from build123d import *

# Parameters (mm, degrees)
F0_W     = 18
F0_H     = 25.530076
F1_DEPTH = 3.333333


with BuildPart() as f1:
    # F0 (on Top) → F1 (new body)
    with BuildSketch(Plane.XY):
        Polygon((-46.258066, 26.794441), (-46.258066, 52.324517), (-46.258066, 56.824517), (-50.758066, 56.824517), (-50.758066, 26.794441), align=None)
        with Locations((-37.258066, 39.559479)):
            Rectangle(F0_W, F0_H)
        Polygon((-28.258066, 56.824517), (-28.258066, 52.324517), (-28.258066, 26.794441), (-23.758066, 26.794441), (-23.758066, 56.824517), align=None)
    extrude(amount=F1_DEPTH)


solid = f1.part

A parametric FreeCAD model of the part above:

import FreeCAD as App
import Part
import Sketcher

doc = App.newDocument("Part")
body = doc.addObject("PartDesign::Body", "Body")

# Sketch on XY plane
sketch1 = body.newObject("Sketcher::SketchObject", "Sketch")
sketch1.AttachmentSupport = (doc.getObject("XY_Plane"), [""])
sketch1.MapMode = "FlatFace"
sketch1.addGeometry([
    Part.LineSegment(App.Vector(-46.3, 52.3, 0), App.Vector(-46.3, 56.8, 0)),  # 0
    Part.LineSegment(App.Vector(-46.3, 56.8, 0), App.Vector(-50.8, 56.8, 0)),  # 1
    Part.LineSegment(App.Vector(-50.8, 56.8, 0), App.Vector(-50.8, 26.8, 0)),  # 2
    Part.LineSegment(App.Vector(-50.8, 26.8, 0), App.Vector(-23.8, 26.8, 0)),  # 3
    Part.LineSegment(App.Vector(-23.8, 26.8, 0), App.Vector(-23.8, 56.8, 0)),  # 4
    Part.LineSegment(App.Vector(-23.8, 56.8, 0), App.Vector(-28.3, 56.8, 0)),  # 5
    Part.LineSegment(App.Vector(-28.3, 56.8, 0), App.Vector(-28.3, 52.3, 0)),  # 6
    Part.LineSegment(App.Vector(-28.3, 52.3, 0), App.Vector(-46.3, 52.3, 0)),  # 7
], False)
sketch1.addConstraint([
    Sketcher.Constraint("Coincident", 0, 2, 1, 1),
    Sketcher.Constraint("Coincident", 1, 2, 2, 1),
    Sketcher.Constraint("Coincident", 2, 2, 3, 1),
    Sketcher.Constraint("Coincident", 3, 2, 4, 1),
    Sketcher.Constraint("Coincident", 4, 2, 5, 1),
    Sketcher.Constraint("Coincident", 5, 2, 6, 1),
    Sketcher.Constraint("Coincident", 6, 2, 7, 1),
    Sketcher.Constraint("Coincident", 7, 2, 0, 1),
    Sketcher.Constraint("Vertical", 0),
    Sketcher.Constraint("Horizontal", 1),
    Sketcher.Constraint("Vertical", 2),
    Sketcher.Constraint("Horizontal", 3),
    Sketcher.Constraint("Vertical", 4),
    Sketcher.Constraint("Horizontal", 5),
    Sketcher.Constraint("Vertical", 6),
    Sketcher.Constraint("Horizontal", 7),
    Sketcher.Constraint("Horizontal", 1, 2, 4, 2),
    Sketcher.Constraint("Equal", 1, 5),
    Sketcher.Constraint("Equal", 5, 0),
    Sketcher.Constraint("DistanceX", 3, 1, 3, 2, 27.0),
    Sketcher.Constraint("DistanceX", 7, 2, 7, 1, 18.0),
    Sketcher.Constraint("DistanceY", 2, 2, 2, 1, 30.030076),
    Sketcher.Constraint("DistanceY", -1, 1, 2, 2, 26.794441),
    Sketcher.Constraint("DistanceX", 0, 2, -1, 1, 46.258066),
])
pad1 = body.newObject("PartDesign::Pad", "Pad")
pad1.Profile = sketch1
pad1.Length = 3.333333

doc.recompute()
